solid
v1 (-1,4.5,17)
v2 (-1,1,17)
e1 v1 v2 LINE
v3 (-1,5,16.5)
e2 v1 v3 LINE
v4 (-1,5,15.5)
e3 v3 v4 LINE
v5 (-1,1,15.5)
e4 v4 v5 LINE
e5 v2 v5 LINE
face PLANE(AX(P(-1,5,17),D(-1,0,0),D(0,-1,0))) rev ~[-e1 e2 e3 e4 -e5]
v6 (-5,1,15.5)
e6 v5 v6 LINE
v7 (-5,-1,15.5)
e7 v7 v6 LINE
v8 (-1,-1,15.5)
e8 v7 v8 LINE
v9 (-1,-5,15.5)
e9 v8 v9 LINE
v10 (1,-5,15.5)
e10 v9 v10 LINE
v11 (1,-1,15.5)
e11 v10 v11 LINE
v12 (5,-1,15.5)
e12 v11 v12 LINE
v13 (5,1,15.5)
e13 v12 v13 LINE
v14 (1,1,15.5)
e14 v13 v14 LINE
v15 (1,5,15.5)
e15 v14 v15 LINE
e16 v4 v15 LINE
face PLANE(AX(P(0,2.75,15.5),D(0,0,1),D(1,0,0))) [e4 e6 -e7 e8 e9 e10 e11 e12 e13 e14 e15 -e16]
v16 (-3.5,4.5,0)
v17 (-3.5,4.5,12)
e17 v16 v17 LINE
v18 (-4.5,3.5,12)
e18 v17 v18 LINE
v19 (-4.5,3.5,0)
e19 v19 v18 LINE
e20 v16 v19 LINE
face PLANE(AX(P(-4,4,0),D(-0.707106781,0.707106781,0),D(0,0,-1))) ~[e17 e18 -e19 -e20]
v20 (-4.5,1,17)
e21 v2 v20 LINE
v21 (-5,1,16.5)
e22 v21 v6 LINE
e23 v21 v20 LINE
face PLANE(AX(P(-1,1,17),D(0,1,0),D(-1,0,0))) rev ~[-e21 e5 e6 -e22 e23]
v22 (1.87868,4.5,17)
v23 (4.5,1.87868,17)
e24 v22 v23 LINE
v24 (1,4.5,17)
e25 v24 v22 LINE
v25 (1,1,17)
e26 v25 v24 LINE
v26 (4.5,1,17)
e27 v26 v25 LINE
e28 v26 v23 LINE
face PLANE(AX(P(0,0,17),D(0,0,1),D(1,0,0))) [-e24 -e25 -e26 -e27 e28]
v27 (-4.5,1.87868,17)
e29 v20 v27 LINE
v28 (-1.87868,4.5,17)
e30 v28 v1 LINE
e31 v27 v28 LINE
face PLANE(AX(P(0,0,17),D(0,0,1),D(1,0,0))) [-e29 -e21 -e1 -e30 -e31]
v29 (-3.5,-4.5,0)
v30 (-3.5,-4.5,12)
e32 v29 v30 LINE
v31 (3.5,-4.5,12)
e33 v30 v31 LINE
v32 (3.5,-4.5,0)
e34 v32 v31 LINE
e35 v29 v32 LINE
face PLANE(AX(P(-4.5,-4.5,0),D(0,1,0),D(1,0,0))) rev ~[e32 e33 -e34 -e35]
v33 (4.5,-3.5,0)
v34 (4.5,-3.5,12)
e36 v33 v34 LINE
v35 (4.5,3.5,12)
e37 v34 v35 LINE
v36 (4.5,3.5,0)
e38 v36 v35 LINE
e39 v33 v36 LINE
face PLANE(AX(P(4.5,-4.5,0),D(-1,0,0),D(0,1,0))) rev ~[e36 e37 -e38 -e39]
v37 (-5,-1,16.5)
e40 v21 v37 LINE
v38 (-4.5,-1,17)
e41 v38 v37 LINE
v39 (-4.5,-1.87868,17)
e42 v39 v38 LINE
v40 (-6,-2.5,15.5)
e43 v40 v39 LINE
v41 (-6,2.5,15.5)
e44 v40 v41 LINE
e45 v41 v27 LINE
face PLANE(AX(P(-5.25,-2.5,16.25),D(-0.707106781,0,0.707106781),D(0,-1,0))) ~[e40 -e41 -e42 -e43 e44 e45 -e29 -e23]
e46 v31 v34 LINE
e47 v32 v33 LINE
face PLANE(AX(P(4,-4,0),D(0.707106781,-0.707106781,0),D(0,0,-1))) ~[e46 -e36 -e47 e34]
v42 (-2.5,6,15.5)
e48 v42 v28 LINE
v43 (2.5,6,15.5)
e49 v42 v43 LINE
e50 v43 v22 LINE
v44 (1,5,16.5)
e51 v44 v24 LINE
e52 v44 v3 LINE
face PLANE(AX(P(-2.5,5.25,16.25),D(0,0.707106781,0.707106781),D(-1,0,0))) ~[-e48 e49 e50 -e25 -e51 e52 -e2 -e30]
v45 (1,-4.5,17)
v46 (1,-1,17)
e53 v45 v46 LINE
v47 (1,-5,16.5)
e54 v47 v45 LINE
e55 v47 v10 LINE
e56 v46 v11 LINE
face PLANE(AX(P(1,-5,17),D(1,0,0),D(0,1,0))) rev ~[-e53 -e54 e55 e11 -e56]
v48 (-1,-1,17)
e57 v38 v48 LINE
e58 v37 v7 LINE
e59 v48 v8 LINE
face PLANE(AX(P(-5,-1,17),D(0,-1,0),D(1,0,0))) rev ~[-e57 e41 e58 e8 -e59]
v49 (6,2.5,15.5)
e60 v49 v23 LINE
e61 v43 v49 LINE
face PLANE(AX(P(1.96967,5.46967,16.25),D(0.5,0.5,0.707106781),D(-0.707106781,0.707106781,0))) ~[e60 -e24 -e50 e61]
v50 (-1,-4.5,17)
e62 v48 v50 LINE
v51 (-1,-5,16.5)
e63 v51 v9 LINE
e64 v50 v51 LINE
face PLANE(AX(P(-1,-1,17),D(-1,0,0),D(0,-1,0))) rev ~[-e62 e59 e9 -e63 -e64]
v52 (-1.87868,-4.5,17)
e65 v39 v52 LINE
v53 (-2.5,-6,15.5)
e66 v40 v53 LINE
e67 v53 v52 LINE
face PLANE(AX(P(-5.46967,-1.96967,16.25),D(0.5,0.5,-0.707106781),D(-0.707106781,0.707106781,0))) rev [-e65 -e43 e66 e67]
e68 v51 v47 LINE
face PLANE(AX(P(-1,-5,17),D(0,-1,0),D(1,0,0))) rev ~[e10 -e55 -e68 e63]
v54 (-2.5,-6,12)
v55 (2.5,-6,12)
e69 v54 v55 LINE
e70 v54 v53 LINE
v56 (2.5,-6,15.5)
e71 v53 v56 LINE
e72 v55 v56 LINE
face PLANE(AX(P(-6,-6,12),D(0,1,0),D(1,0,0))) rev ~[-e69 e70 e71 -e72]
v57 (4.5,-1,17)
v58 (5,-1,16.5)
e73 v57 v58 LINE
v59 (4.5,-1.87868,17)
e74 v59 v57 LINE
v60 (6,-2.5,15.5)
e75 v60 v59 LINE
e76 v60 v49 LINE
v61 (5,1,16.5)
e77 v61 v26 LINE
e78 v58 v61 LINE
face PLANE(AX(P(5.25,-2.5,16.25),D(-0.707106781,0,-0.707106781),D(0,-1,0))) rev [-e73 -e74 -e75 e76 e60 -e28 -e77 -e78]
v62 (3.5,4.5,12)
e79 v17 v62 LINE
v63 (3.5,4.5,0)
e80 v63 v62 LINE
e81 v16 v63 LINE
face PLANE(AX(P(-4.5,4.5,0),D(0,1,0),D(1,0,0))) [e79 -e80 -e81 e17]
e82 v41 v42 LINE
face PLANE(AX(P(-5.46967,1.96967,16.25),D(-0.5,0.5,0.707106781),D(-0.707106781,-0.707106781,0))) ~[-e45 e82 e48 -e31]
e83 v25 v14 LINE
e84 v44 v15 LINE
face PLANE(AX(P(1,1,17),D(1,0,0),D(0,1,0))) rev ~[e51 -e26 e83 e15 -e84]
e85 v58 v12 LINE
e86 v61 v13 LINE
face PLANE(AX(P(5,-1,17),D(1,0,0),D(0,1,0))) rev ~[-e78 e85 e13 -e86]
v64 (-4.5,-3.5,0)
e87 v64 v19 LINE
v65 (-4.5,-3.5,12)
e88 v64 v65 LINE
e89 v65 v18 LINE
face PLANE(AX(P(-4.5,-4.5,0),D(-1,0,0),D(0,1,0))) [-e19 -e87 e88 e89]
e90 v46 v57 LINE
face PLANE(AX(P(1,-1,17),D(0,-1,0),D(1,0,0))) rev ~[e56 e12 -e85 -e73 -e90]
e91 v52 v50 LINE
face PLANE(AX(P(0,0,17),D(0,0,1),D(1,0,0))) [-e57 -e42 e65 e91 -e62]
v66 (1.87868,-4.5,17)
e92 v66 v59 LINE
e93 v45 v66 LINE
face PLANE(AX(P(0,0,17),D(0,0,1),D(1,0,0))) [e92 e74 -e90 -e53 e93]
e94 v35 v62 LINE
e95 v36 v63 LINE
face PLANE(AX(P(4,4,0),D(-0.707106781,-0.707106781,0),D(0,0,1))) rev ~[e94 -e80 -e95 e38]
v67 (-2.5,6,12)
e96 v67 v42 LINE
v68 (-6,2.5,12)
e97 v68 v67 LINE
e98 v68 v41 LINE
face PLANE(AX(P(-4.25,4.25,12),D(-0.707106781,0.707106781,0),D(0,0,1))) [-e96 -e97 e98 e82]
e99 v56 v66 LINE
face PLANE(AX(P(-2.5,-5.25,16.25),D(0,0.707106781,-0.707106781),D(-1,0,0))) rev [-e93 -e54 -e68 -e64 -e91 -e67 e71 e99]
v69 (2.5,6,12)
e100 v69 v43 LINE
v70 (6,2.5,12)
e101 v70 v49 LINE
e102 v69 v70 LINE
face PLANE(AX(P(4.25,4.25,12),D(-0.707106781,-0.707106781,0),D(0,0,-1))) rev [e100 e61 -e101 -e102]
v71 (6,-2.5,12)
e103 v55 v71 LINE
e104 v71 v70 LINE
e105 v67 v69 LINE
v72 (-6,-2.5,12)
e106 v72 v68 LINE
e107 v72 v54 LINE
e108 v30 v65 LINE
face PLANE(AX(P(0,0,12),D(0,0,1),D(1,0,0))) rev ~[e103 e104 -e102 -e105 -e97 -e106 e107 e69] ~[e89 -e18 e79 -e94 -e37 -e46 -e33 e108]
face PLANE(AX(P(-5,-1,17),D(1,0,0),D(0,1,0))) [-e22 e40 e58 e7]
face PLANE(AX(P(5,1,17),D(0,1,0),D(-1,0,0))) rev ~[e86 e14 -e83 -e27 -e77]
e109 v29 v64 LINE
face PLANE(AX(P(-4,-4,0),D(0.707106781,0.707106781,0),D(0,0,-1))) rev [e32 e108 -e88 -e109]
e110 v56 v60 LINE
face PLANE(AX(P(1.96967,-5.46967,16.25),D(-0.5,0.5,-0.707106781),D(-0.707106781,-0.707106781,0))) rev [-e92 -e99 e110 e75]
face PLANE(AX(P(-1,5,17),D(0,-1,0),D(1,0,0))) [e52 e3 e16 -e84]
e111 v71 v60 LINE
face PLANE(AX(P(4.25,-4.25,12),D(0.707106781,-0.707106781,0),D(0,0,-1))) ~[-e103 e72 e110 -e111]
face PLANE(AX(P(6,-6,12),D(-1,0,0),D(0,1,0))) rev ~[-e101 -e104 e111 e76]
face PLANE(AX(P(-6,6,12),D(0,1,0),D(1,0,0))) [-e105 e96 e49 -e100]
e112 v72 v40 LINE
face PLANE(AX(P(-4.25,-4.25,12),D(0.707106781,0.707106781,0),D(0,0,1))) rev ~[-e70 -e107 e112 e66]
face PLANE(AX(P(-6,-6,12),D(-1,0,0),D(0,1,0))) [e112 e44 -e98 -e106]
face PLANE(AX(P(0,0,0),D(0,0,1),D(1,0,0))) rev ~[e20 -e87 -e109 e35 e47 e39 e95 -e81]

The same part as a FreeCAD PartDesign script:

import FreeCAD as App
import Part
import Sketcher
Q = App.Units.Quantity


def edges_at(feature, points):
    """Names of the edges that pass closest to the given points."""
    edges = feature.Shape.Edges
    near = lambda p: min(range(len(edges)), key=lambda i: edges[i].distToShape(Part.Vertex(*p))[0])
    return sorted({f"Edge{near(p) + 1}" for p in points})


def add_polygon(sketch, points):
    """Adds a closed chain of lines whose ends are joined by coincident constraints."""
    first, n = sketch.GeometryCount, len(points)
    for a, b in zip(points, points[1:] + points[:1]):
        sketch.addGeometry(Part.LineSegment(App.Vector(*a, 0), App.Vector(*b, 0)), False)
    for i in range(n):
        sketch.addConstraint(Sketcher.Constraint("Coincident", first + i, 2, first + (i + 1) % n, 1))

doc = App.newDocument("Part")
params = doc.addObject("Spreadsheet::Sheet", "Params")
for row, (alias, value) in enumerate([
    ("sketch1_width", "9 mm"),
    ("pad1_length", "12 mm"),
    ("sketch2_width", "12 mm"),
    ("pad2_length", "5 mm"),
    ("chamfer_size", "1 mm"),
    ("chamfer2_size", "3.5 mm"),
    ("chamfer3_size", "1.5 mm"),
    ("sketch3_width", "4 mm"),
    ("sketch3_width2", "2 mm"),
    ("pocket1_length", "1.5 mm"),
], start=1):
    params.set(f"A{row}", alias)
    params.set(f"B{row}", "=" + value)
    params.setAlias(f"B{row}", alias)

body = doc.addObject("PartDesign::Body", "Body")

# Sketch on XY plane
sketch1 = doc.addObject("Sketcher::SketchObject", "Sketch")
body.addObject(sketch1)
sketch1.AttachmentSupport = (doc.XY_Plane, [""])
sketch1.MapMode = "FlatFace"
add_polygon(sketch1, [(-4.5, 4.5), (-4.5, -4.5), (4.5, -4.5), (4.5, 4.5)])  # lines 0-3
sketch1.addConstraint([
    Sketcher.Constraint("Vertical", 0),
    Sketcher.Constraint("Horizontal", 1),
    Sketcher.Constraint("Vertical", 2),
    Sketcher.Constraint("Horizontal", 3),
    Sketcher.Constraint("Symmetric", 0, 2, 2, 2, -1, 1),
    Sketcher.Constraint("Equal", 3, 0),
    Sketcher.Constraint("DistanceX", 1, 1, 1, 2, Q("9 mm")),
])
sketch1.setExpression("Constraints[10]", "Params.sketch1_width")
pad1 = doc.addObject("PartDesign::Pad", "Pad")
body.addObject(pad1)
pad1.Profile = sketch1
pad1.setExpression("Length", "Params.pad1_length")

# Sketch on XY plane
sketch2 = doc.addObject("Sketcher::SketchObject", "Sketch001")
body.addObject(sketch2)
sketch2.AttachmentSupport = (doc.XY_Plane, [""])
sketch2.MapMode = "FlatFace"
sketch2.AttachmentOffset = App.Placement(App.Vector(0, 0, 12), App.Rotation())
add_polygon(sketch2, [(-6, 6), (-6, -6), (6, -6), (6, 6)])  # lines 0-3
sketch2.addConstraint([
    Sketcher.Constraint("Vertical", 0),
    Sketcher.Constraint("Horizontal", 1),
    Sketcher.Constraint("Vertical", 2),
    Sketcher.Constraint("Horizontal", 3),
    Sketcher.Constraint("Symmetric", 0, 2, 2, 2, -1, 1),
    Sketcher.Constraint("Equal", 3, 0),
    Sketcher.Constraint("DistanceX", 1, 1, 1, 2, Q("12 mm")),
])
sketch2.setExpression("Constraints[10]", "Params.sketch2_width")
pad2 = doc.addObject("PartDesign::Pad", "Pad001")
body.addObject(pad2)
pad2.Profile = sketch2
pad2.setExpression("Length", "Params.pad2_length")
doc.recompute()

chamfer = doc.addObject("PartDesign::Chamfer", "Chamfer")
body.addObject(chamfer)
chamfer.Base = (pad2, edges_at(pad2, [
    (-4.5, 4.5, 6),
    (4.5, 4.5, 6),
    (4.5, -4.5, 6),
    (-4.5, -4.5, 6),
]))
chamfer.setExpression("Size", "Params.chamfer_size")
doc.recompute()

chamfer2 = doc.addObject("PartDesign::Chamfer", "Chamfer001")
body.addObject(chamfer2)
chamfer2.Base = (chamfer, edges_at(chamfer, [
    (6, 6, 14.5),
    (-6, 6, 14.5),
    (-6, -6, 14.5),
    (6, -6, 14.5),
]))
chamfer2.setExpression("Size", "Params.chamfer2_size")
doc.recompute()

chamfer3 = doc.addObject("PartDesign::Chamfer", "Chamfer002")
body.addObject(chamfer3)
chamfer3.Base = (chamfer2, edges_at(chamfer2, [
    (0, 6, 17),
    (6, 0, 17),
    (-6, 0, 17),
    (0, -6, 17),
    (-4.25, 4.25, 17),
    (-4.25, -4.25, 17),
    (4.25, -4.25, 17),
    (4.25, 4.25, 17),
]))
chamfer3.setExpression("Size", "Params.chamfer3_size")

# Sketch on XY plane
sketch3 = doc.addObject("Sketcher::SketchObject", "Sketch002")
body.addObject(sketch3)
sketch3.AttachmentSupport = (doc.XY_Plane, [""])
sketch3.MapMode = "FlatFace"
sketch3.AttachmentOffset = App.Placement(App.Vector(0, 0, 17), App.Rotation())
add_polygon(sketch3, [(-1, 1), (-5, 1), (-5, -1), (-1, -1), (-1, -5), (1, -5), (1, -1), (5, -1), (5, 1), (1, 1), (1, 5), (-1, 5)])  # lines 0-11
sketch3.addConstraint([
    Sketcher.Constraint("Horizontal", 0),
    Sketcher.Constraint("Vertical", 1),
    Sketcher.Constraint("Horizontal", 2),
    Sketcher.Constraint("Vertical", 3),
    Sketcher.Constraint("Horizontal", 4),
    Sketcher.Constraint("Vertical", 5),
    Sketcher.Constraint("Horizontal", 6),
    Sketcher.Constraint("Vertical", 7),
    Sketcher.Constraint("Horizontal", 8),
    Sketcher.Constraint("Vertical", 9),
    Sketcher.Constraint("Horizontal", 10),
    Sketcher.Constraint("Vertical", 11),
    Sketcher.Constraint("Symmetric", 0, 2, 6, 2, -1, 1),
    Sketcher.Constraint("Symmetric", 2, 2, 8, 2, -1, 1),
    Sketcher.Constraint("Symmetric", 4, 2, 10, 2, -1, 1),
    Sketcher.Constraint("Symmetric", 2, 2, 5, 2, -2),
    Sketcher.Constraint("Equal", 10, 1),
    Sketcher.Constraint("Equal", 8, 3),
    Sketcher.Constraint("DistanceX", 0, 2, 0, 1, Q("4 mm")),
    Sketcher.Constraint("DistanceX", 4, 1, 4, 2, Q("2 mm")),
])
sketch3.setExpression("Constraints[30]", "Params.sketch3_width")
sketch3.setExpression("Constraints[31]", "Params.sketch3_width2")
pocket1 = doc.addObject("PartDesign::Pocket", "Pocket")
body.addObject(pocket1)
pocket1.Profile = sketch3
pocket1.setExpression("Length", "Params.pocket1_length")

doc.recompute()
